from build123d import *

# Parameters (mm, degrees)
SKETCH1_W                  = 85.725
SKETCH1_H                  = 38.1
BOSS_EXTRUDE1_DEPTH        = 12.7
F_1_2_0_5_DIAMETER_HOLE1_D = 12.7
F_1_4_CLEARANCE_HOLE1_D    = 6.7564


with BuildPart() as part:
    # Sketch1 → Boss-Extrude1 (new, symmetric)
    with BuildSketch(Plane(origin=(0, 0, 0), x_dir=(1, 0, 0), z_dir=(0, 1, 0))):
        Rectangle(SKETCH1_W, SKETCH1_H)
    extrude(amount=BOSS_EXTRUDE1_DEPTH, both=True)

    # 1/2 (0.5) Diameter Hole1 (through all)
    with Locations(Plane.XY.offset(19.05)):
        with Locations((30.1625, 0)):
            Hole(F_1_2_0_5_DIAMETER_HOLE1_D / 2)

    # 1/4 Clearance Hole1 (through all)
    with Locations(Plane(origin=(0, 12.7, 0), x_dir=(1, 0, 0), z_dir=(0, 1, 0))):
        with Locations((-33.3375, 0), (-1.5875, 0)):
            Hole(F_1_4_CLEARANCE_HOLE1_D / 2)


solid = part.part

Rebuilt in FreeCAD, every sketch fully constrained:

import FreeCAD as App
import Part
import Sketcher
Q = App.Units.Quantity


def add_polygon(sketch, points):
    """Adds a closed chain of lines whose ends are joined by coincident constraints."""
    first, n = sketch.GeometryCount, len(points)
    for a, b in zip(points, points[1:] + points[:1]):
        sketch.addGeometry(Part.LineSegment(App.Vector(*a, 0), App.Vector(*b, 0)), False)
    for i in range(n):
        sketch.addConstraint(Sketcher.Constraint("Coincident", first + i, 2, first + (i + 1) % n, 1))

doc = App.newDocument("Part")
body = doc.addObject("PartDesign::Body", "Body")

sketch1 = body.newObject("Sketcher::SketchObject", "Sketch")
sketch1.AttachmentSupport = (doc.getObject("XZ_Plane"), [""])
sketch1.MapMode = "FlatFace"
add_polygon(sketch1, [(-43, -19), (-43, 19), (43, 19), (43, -19)])
sketch1.addConstraint([
    Sketcher.Constraint("Vertical", 0),
    Sketcher.Constraint("Horizontal", 1),
    Sketcher.Constraint("Vertical", 2),
    Sketcher.Constraint("Horizontal", 3),
    Sketcher.Constraint("Symmetric", 0, 2, 2, 2, -1, 1),
    Sketcher.Constraint("DistanceY", 0, 1, 0, 2, Q("1.5 in")),
    Sketcher.Constraint("DistanceX", 1, 1, 1, 2, Q("3.375 in")),
])
pad1 = body.newObject("PartDesign::Pad", "Pad")
pad1.Profile = sketch1
pad1.Length = Q("1 in")
pad1.Midplane = True

sketch2 = body.newObject("Sketcher::SketchObject", "Sketch001")
sketch2.AttachmentSupport = (doc.getObject("XY_Plane"), [""])
sketch2.MapMode = "FlatFace"
sketch2.AttachmentOffset = App.Placement(App.Vector(0, 0, 0.75 * 25.4), App.Rotation())
sketch2.addGeometry(Part.Circle(App.Vector(30, 0, 0), App.Vector(0, 0, 1), 6), False)
sketch2.addConstraint([
    Sketcher.Constraint("PointOnObject", 0, 3, -1),
    Sketcher.Constraint("Diameter", 0, Q("0.5 in")),
    Sketcher.Constraint("DistanceX", -1, 1, 0, 3, Q("1.1875 in")),
])
doc.recompute()
hole = body.newObject("PartDesign::Hole", "Hole")
hole.Profile = sketch2
hole.ThreadType = "None"
hole.Diameter = Q("0.5 in")
hole.DepthType = "ThroughAll"

sketch3 = body.newObject("Sketcher::SketchObject", "Sketch002")
sketch3.AttachmentSupport = (doc.getObject("XZ_Plane"), [""])
sketch3.MapMode = "FlatFace"
sketch3.AttachmentOffset = App.Placement(App.Vector(0, 0, -0.5 * 25.4), App.Rotation())
sketch3.addGeometry([
    Part.Circle(App.Vector(-33.3, 0, 0), App.Vector(0, 0, 1), 3.4),
    Part.Circle(App.Vector(-1.6, 0, 0), App.Vector(0, 0, 1), 3.4),
], False)
sketch3.addConstraint([
    Sketcher.Constraint("Equal", 0, 1),
    Sketcher.Constraint("PointOnObject", 0, 3, -1),
    Sketcher.Constraint("PointOnObject", 1, 3, -1),
    Sketcher.Constraint("Diameter", 0, Q("0.266 in")),
    Sketcher.Constraint("DistanceX", 0, 3, 1, 3, Q("1.25 in")),
    Sketcher.Constraint("DistanceX", 0, 3, -1, 1, Q("1.3125 in")),
])
doc.recompute()
hole2 = body.newObject("PartDesign::Hole", "Hole001")
hole2.Profile = sketch3
hole2.ThreadType = "None"
hole2.Diameter = Q("0.266 in")
hole2.DepthType = "ThroughAll"
hole2.Reversed = True

doc.recompute()
